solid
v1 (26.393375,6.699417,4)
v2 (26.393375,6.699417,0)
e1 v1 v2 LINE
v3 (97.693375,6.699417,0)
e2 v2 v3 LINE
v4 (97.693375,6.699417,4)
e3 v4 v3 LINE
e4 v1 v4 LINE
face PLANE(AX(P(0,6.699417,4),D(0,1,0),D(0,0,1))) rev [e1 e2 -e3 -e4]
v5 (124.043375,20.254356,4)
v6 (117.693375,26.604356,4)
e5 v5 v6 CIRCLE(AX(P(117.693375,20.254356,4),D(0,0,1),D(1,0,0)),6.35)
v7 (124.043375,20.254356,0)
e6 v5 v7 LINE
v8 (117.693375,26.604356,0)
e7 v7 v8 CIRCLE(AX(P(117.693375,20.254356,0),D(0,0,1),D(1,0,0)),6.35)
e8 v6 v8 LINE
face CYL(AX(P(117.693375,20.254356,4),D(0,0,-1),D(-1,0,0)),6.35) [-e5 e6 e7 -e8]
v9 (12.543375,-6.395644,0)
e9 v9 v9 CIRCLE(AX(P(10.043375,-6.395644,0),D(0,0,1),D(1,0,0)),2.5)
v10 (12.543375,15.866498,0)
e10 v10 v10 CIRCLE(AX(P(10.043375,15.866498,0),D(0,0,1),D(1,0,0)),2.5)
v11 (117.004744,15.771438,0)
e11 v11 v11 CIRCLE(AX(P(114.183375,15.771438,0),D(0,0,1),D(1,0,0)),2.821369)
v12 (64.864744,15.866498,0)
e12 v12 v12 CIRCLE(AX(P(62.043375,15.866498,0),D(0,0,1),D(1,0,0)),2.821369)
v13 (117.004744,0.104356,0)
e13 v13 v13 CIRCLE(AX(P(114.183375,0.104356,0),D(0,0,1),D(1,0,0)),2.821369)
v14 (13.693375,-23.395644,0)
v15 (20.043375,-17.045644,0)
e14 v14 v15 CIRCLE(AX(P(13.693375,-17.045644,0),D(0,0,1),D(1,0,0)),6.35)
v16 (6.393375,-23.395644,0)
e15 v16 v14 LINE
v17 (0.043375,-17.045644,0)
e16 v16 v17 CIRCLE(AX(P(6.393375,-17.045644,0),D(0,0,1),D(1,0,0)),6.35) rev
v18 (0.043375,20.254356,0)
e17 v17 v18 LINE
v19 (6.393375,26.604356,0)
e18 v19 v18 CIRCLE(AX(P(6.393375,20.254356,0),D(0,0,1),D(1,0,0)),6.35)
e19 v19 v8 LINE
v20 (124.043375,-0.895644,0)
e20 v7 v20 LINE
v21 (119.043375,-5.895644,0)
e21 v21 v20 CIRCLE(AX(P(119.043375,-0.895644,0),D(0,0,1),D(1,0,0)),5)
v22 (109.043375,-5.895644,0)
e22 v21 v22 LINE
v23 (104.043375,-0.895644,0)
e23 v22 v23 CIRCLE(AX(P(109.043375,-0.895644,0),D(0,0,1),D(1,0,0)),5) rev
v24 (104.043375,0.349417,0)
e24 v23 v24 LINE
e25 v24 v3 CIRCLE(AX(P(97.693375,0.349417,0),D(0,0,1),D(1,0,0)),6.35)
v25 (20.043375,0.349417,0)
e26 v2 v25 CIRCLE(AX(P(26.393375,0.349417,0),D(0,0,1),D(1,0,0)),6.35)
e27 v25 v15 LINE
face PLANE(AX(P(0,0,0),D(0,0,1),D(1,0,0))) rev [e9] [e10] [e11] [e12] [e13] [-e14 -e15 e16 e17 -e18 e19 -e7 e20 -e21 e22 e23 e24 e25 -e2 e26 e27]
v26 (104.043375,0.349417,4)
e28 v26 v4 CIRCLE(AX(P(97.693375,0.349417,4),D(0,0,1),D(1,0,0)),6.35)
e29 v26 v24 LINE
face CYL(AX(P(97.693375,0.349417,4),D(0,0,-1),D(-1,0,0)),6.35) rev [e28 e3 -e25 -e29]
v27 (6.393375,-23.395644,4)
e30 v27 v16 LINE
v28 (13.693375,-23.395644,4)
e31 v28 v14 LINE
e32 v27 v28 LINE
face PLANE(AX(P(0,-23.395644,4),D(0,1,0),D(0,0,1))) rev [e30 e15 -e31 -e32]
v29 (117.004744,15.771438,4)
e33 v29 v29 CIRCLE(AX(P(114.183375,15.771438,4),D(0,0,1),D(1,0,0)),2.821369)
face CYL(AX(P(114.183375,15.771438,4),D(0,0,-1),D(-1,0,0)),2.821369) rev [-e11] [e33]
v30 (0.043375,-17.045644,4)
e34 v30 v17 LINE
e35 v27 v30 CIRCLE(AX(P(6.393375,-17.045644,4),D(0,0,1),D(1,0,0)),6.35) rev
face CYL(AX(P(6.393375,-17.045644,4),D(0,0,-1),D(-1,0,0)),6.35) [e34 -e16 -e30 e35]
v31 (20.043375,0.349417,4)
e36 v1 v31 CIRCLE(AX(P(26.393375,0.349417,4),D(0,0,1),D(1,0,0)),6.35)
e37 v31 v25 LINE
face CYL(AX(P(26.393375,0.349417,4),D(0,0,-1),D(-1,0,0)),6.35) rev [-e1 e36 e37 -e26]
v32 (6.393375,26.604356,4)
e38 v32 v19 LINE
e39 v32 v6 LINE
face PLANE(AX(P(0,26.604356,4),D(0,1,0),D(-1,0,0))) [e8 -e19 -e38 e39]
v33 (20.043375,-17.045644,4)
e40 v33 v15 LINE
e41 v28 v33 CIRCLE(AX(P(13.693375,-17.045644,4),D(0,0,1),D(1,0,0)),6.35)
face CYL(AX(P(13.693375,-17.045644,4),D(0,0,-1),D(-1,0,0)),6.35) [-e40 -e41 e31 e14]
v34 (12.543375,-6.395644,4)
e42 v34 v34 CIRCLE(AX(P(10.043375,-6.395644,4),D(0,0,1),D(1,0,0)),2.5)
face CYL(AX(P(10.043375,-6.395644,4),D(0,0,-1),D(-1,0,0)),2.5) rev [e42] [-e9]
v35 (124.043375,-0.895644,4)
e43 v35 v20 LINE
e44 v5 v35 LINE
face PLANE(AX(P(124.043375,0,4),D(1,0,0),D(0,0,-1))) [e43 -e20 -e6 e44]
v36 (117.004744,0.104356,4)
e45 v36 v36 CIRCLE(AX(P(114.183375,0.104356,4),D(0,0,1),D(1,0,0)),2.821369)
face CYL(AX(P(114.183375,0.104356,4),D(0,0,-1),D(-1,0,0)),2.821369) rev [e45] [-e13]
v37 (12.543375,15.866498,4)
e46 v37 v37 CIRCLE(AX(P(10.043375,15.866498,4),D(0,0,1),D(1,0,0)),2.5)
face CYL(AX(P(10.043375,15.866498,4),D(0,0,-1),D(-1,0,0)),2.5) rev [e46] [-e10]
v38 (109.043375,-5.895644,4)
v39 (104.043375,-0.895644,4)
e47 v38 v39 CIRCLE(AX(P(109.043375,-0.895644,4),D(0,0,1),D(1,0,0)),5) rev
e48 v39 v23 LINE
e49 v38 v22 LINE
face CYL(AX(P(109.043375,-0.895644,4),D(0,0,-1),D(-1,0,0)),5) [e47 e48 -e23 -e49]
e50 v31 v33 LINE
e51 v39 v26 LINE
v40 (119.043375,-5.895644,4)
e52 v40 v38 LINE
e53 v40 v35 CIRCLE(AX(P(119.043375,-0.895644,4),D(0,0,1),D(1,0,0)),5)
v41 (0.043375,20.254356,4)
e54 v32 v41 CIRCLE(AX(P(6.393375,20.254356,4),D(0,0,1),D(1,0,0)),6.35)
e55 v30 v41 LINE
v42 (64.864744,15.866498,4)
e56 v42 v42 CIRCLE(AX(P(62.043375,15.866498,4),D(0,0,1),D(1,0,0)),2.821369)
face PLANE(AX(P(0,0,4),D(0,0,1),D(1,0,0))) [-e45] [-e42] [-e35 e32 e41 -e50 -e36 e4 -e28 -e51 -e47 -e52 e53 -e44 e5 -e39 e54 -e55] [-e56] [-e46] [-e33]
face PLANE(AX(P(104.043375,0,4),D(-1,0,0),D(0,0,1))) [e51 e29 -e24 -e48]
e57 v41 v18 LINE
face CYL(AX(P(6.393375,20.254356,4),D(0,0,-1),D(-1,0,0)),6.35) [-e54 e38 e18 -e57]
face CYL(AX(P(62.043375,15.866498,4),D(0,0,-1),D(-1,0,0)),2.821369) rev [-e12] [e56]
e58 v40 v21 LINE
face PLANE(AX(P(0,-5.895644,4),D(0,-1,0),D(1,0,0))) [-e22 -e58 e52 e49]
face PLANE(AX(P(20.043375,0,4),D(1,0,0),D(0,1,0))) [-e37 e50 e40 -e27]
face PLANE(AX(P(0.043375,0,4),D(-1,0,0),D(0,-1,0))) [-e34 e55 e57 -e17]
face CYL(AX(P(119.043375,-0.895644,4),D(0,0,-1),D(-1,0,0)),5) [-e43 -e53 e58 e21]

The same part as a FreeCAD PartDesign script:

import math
import FreeCAD as App
import Part
import Sketcher
Q = App.Units.Quantity

doc = App.newDocument("Part")
body = doc.addObject("PartDesign::Body", "Body")

# Sketch on XY plane
sketch1 = body.newObject("Sketcher::SketchObject", "Sketch")
sketch1.AttachmentSupport = (doc.getObject("XY_Plane"), [""])
sketch1.MapMode = "FlatFace"
sketch1.addGeometry([
    Part.LineSegment(App.Vector(26.4, 6.7, 0), App.Vector(97.7, 6.7, 0)),  # 0
    Part.ArcOfCircle(Part.Circle(App.Vector(97.7, 0.3, 0), App.Vector(0, 0, 1), 6.4), math.radians(0), math.radians(90)),  # 1
    Part.LineSegment(App.Vector(104, 0.3, 0), App.Vector(104, -0.9, 0)),  # 2
    Part.ArcOfCircle(Part.Circle(App.Vector(109, -0.9, 0), App.Vector(0, 0, 1), 5), math.radians(180), math.radians(270)),  # 3
    Part.LineSegment(App.Vector(109, -5.9, 0), App.Vector(119, -5.9, 0)),  # 4
    Part.ArcOfCircle(Part.Circle(App.Vector(119, -0.9, 0), App.Vector(0, 0, 1), 5), math.radians(-90), math.radians(0)),  # 5
    Part.LineSegment(App.Vector(124, -0.9, 0), App.Vector(124, 20.3, 0)),  # 6
    Part.ArcOfCircle(Part.Circle(App.Vector(117.7, 20.3, 0), App.Vector(0, 0, 1), 6.3), math.radians(0), math.radians(90)),  # 7
    Part.LineSegment(App.Vector(117.7, 26.6, 0), App.Vector(6.4, 26.6, 0)),  # 8
    Part.ArcOfCircle(Part.Circle(App.Vector(6.4, 20.3, 0), App.Vector(0, 0, 1), 6.3), math.radians(90), math.radians(180)),  # 9
    Part.LineSegment(App.Vector(0, 20.3, 0), App.Vector(0, -17, 0)),  # 10
    Part.ArcOfCircle(Part.Circle(App.Vector(6.4, -17, 0), App.Vector(0, 0, 1), 6.3), math.radians(180), math.radians(270)),  # 11
    Part.LineSegment(App.Vector(6.4, -23.4, 0), App.Vector(13.7, -23.4, 0)),  # 12
    Part.ArcOfCircle(Part.Circle(App.Vector(13.7, -17, 0), App.Vector(0, 0, 1), 6.4), math.radians(-90), math.radians(0)),  # 13
    Part.LineSegment(App.Vector(20, -17, 0), App.Vector(20, 0.3, 0)),  # 14
    Part.ArcOfCircle(Part.Circle(App.Vector(26.4, 0.3, 0), App.Vector(0, 0, 1), 6.3), math.radians(90), math.radians(180)),  # 15
    Part.Circle(App.Vector(10, -6.4, 0), App.Vector(0, 0, 1), 2.5),  # 16
    Part.Circle(App.Vector(114.2, 0.1, 0), App.Vector(0, 0, 1), 2.8),  # 17
    Part.Circle(App.Vector(10, 15.9, 0), App.Vector(0, 0, 1), 2.5),  # 18
    Part.Circle(App.Vector(62, 15.9, 0), App.Vector(0, 0, 1), 2.8),  # 19
    Part.Circle(App.Vector(114.2, 15.8, 0), App.Vector(0, 0, 1), 2.8),  # 20
], False)
sketch1.addConstraint([
    Sketcher.Constraint("Tangent", 0, 2, 1, 2),
    Sketcher.Constraint("Tangent", 1, 1, 2, 1),
    Sketcher.Constraint("Tangent", 2, 2, 3, 1),
    Sketcher.Constraint("Tangent", 3, 2, 4, 1),
    Sketcher.Constraint("Tangent", 4, 2, 5, 1),
    Sketcher.Constraint("Tangent", 5, 2, 6, 1),
    Sketcher.Constraint("Tangent", 6, 2, 7, 1),
    Sketcher.Constraint("Tangent", 7, 2, 8, 1),
    Sketcher.Constraint("Tangent", 8, 2, 9, 1),
    Sketcher.Constraint("Tangent", 9, 2, 10, 1),
    Sketcher.Constraint("Tangent", 10, 2, 11, 1),
    Sketcher.Constraint("Tangent", 11, 2, 12, 1),
    Sketcher.Constraint("Tangent", 12, 2, 13, 1),
    Sketcher.Constraint("Tangent", 13, 2, 14, 1),
    Sketcher.Constraint("Tangent", 14, 2, 15, 2),
    Sketcher.Constraint("Tangent", 15, 1, 0, 1),
    Sketcher.Constraint("Horizontal", 0),
    Sketcher.Constraint("Vertical", 2),
    Sketcher.Constraint("Horizontal", 4),
    Sketcher.Constraint("Vertical", 6),
    Sketcher.Constraint("Horizontal", 8),
    Sketcher.Constraint("Vertical", 10),
    Sketcher.Constraint("Horizontal", 12),
    Sketcher.Constraint("Vertical", 14),
    Sketcher.Constraint("Equal", 3, 5),
    Sketcher.Constraint("Equal", 1, 7),
    Sketcher.Constraint("Equal", 7, 9),
    Sketcher.Constraint("Equal", 9, 11),
    Sketcher.Constraint("Equal", 11, 13),
    Sketcher.Constraint("Equal", 13, 15),
    Sketcher.Constraint("Equal", 16, 18),
    Sketcher.Constraint("Equal", 17, 19),
    Sketcher.Constraint("Equal", 19, 20),
    Sketcher.Constraint("Horizontal", 18, 3, 19, 3),
    Sketcher.Constraint("Vertical", 16, 3, 18, 3),
    Sketcher.Constraint("Vertical", 17, 3, 20, 3),
    Sketcher.Constraint("Diameter", 16, Q("5 mm")),
    Sketcher.Constraint("Radius", 3, Q("5 mm")),
    Sketcher.Constraint("DistanceX", 4, 1, 4, 2, Q("10 mm")),
    Sketcher.Constraint("Radius", 1, Q("6.35 mm")),
    Sketcher.Constraint("DistanceX", 0, 1, 0, 2, Q("71.3 mm")),
    Sketcher.Constraint("DistanceX", 8, 2, 8, 1, Q("111.3 mm")),
    Sketcher.Constraint("DistanceY", 10, 2, 10, 1, Q("37.3 mm")),
    Sketcher.Constraint("DistanceY", 5, 3, 17, 3, Q("1 mm")),
    Sketcher.Constraint("DistanceX", 19, 3, 3, 3, Q("47 mm")),
    Sketcher.Constraint("DistanceX", 18, 3, 19, 3, Q("52 mm")),
    Sketcher.Constraint("DistanceY", 16, 3, 8, 2, Q("33 mm")),
    Sketcher.Constraint("DistanceY", 6, 1, 6, 2, Q("21.15 mm")),
    Sketcher.Constraint("DistanceX", 17, 3, 5, 3, Q("4.86 mm")),
    Sketcher.Constraint("Diameter", 17, Q("5.642737 mm")),
    Sketcher.Constraint("DistanceY", 2, 2, 2, 1, Q("1.245061 mm")),
    Sketcher.Constraint("DistanceY", -1, 1, 18, 3, Q("15.866498 mm")),
    Sketcher.Constraint("DistanceY", 15, 3, 18, 3, Q("15.517081 mm")),
    Sketcher.Constraint("DistanceY", 20, 3, 7, 3, Q("4.482919 mm")),
    Sketcher.Constraint("DistanceX", -1, 1, 1, 3, Q("97.693375 mm")),
])
pad1 = body.newObject("PartDesign::Pad", "Pad")
pad1.Profile = sketch1
pad1.Length = 4

doc.recompute()
